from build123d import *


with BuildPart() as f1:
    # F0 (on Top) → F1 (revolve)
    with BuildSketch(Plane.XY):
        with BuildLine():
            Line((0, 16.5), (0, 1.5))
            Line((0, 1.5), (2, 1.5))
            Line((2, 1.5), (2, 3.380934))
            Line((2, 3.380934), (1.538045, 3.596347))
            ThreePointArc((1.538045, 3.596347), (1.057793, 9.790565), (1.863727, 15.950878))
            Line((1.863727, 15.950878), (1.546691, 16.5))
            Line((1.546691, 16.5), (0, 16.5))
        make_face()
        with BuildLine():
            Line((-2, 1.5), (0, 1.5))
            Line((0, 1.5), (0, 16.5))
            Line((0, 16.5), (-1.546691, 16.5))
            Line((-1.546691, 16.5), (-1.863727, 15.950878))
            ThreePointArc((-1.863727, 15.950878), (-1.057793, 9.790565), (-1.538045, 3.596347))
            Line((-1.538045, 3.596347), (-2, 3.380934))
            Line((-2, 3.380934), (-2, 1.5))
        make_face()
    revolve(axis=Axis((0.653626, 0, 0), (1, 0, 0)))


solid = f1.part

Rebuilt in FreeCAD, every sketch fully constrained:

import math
import FreeCAD as App
import Part
import Sketcher
from FreeCAD import Vector
Q = App.Units.Quantity

doc = App.newDocument("Part")
body = doc.addObject("PartDesign::Body", "Body")

# Sketch on XY plane
sketch1 = body.newObject("Sketcher::SketchObject", "Sketch")
sketch1.AttachmentSupport = (doc.getObject("XY_Plane"), [""])
sketch1.MapMode = "FlatFace"
sketch1.addGeometry([
    Part.LineSegment(Vector(2, 1.5, 0), Vector(2, 3.380934, 0)),  # 0
    Part.LineSegment(Vector(2, 3.380934, 0), Vector(1.538045, 3.596347, 0)),  # 1
    Part.ArcOfCircle(Part.Circle(Vector(31.047373, 9, 0), Vector(0, 0, 1), 29.999999), math.radians(166.60306), math.radians(190.376852)),  # 2
    Part.LineSegment(Vector(1.863727, 15.950878, 0), Vector(1.546691, 16.5, 0)),  # 3
    Part.LineSegment(Vector(1.546691, 16.5, 0), Vector(-1.546691, 16.5, 0)),  # 4
    Part.LineSegment(Vector(-1.546691, 16.5, 0), Vector(-1.863727, 15.950878, 0)),  # 5
    Part.ArcOfCircle(Part.Circle(Vector(-31.047373, 9, 0), Vector(0, 0, 1), 29.999999), math.radians(-10.376852), math.radians(13.39694)),  # 6
    Part.LineSegment(Vector(-1.538045, 3.596347, 0), Vector(-2, 3.380934, 0)),  # 7
    Part.LineSegment(Vector(-2, 3.380934, 0), Vector(-2, 1.5, 0)),  # 8
    Part.LineSegment(Vector(-2, 1.5, 0), Vector(2, 1.5, 0)),  # 9
], False)
sketch1.addConstraint([
    Sketcher.Constraint("Coincident", 0, 2, 1, 1),
    Sketcher.Constraint("Coincident", 1, 2, 2, 2),
    Sketcher.Constraint("Coincident", 2, 1, 3, 1),
    Sketcher.Constraint("Coincident", 3, 2, 4, 1),
    Sketcher.Constraint("Coincident", 4, 2, 5, 1),
    Sketcher.Constraint("Coincident", 5, 2, 6, 2),
    Sketcher.Constraint("Coincident", 6, 1, 7, 1),
    Sketcher.Constraint("Coincident", 7, 2, 8, 1),
    Sketcher.Constraint("Coincident", 8, 2, 9, 1),
    Sketcher.Constraint("Coincident", 9, 2, 0, 1),
    Sketcher.Constraint("Vertical", 0),
    Sketcher.Constraint("Horizontal", 4),
    Sketcher.Constraint("Vertical", 8),
    Sketcher.Constraint("Horizontal", 9),
    Sketcher.Constraint("Equal", 2, 6),
    Sketcher.Constraint("Symmetric", 2, 3, 6, 3, -2),
    Sketcher.Constraint("Symmetric", 0, 2, 7, 2, -2),
    Sketcher.Constraint("Horizontal", 2, 1, 5, 2),
    Sketcher.Constraint("Horizontal", 1, 2, 6, 1),
    Sketcher.Constraint("Equal", 3, 5),
    Sketcher.Constraint("Radius", 2, Q("29.999999 mm")),
    Sketcher.Constraint("DistanceX", 9, 1, 9, 2, Q("4 mm")),
    Sketcher.Constraint("Angle", 1, Q("155.000016 deg")),
    Sketcher.Constraint("DistanceY", -1, 1, 2, 3, Q("9 mm")),
    Sketcher.Constraint("DistanceY", -1, 1, 3, 2, Q("16.5 mm")),
    Sketcher.Constraint("DistanceY", -1, 1, 8, 2, Q("1.5 mm")),
    Sketcher.Constraint("DistanceX", 6, 3, 2, 1, Q("32.9111 mm")),
    Sketcher.Constraint("Distance", 1, Q("0.509711 mm")),
    Sketcher.Constraint("Distance", 3, Q("0.634072 mm")),
    Sketcher.Constraint("DistanceX", 4, 2, 4, 1, Q("3.093382 mm")),
])
revolution = body.newObject("PartDesign::Revolution", "Revolution")
revolution.Profile = sketch1
revolution.ReferenceAxis = (sketch1, ["H_Axis"])
revolution.Angle = 360

doc.recompute()
